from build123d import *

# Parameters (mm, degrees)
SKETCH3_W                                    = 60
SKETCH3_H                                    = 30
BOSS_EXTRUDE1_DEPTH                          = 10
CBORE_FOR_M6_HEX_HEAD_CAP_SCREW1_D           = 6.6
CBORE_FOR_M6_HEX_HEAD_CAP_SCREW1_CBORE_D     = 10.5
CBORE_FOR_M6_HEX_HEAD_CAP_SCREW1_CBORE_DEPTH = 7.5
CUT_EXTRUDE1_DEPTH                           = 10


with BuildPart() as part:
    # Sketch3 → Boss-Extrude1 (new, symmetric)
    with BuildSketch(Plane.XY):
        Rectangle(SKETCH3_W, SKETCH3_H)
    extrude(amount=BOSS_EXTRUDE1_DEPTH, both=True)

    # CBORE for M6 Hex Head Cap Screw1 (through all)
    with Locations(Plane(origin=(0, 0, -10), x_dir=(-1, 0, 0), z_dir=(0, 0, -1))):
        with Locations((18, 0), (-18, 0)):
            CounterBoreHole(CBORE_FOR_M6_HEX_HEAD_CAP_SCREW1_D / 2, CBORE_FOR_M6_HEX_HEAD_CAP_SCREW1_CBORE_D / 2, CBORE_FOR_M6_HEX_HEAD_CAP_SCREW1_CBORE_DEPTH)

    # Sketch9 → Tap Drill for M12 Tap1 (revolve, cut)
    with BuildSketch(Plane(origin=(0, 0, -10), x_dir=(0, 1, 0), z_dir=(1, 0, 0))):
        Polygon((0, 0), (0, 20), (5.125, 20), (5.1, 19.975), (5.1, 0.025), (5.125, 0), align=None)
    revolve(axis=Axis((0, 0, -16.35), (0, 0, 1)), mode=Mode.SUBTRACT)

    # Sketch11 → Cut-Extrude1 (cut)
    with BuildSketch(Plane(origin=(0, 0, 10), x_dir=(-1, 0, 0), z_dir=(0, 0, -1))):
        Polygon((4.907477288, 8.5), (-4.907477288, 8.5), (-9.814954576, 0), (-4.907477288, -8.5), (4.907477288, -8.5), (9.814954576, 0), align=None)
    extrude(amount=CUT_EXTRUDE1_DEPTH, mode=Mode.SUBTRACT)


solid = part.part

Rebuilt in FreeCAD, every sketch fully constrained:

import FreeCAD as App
import Part
import Sketcher
Q = App.Units.Quantity


def add_polygon(sketch, points):
    """Adds a closed chain of lines whose ends are joined by coincident constraints."""
    first, n = sketch.GeometryCount, len(points)
    for a, b in zip(points, points[1:] + points[:1]):
        sketch.addGeometry(Part.LineSegment(App.Vector(*a, 0), App.Vector(*b, 0)), False)
    for i in range(n):
        sketch.addConstraint(Sketcher.Constraint("Coincident", first + i, 2, first + (i + 1) % n, 1))

doc = App.newDocument("Part")
body = doc.addObject("PartDesign::Body", "Body")

sketch1 = doc.addObject("Sketcher::SketchObject", "Sketch")
body.addObject(sketch1)
sketch1.AttachmentSupport = (doc.XY_Plane, [""])
sketch1.MapMode = "FlatFace"
add_polygon(sketch1, [(-30, 15), (-30, -15), (30, -15), (30, 15)])
sketch1.addConstraint([
    Sketcher.Constraint("Vertical", 0),
    Sketcher.Constraint("Horizontal", 1),
    Sketcher.Constraint("Vertical", 2),
    Sketcher.Constraint("Horizontal", 3),
    Sketcher.Constraint("Symmetric", 0, 2, 2, 2, -1, 1),
    Sketcher.Constraint("DistanceX", 1, 1, 1, 2, Q("60 mm")),
    Sketcher.Constraint("DistanceY", 0, 2, 0, 1, Q("30 mm")),
])
pad1 = doc.addObject("PartDesign::Pad", "Pad")
body.addObject(pad1)
pad1.Profile = sketch1
pad1.Length = 20
pad1.Midplane = True

sketch2 = doc.addObject("Sketcher::SketchObject", "Sketch001")
body.addObject(sketch2)
sketch2.AttachmentSupport = (doc.XY_Plane, [""])
sketch2.MapMode = "FlatFace"
sketch2.AttachmentOffset = App.Placement(App.Vector(0, 0, -10), App.Rotation())
sketch2.addGeometry([
    Part.Circle(App.Vector(-18, 0, 0), App.Vector(0, 0, 1), 3.3),
    Part.Circle(App.Vector(18, 0, 0), App.Vector(0, 0, 1), 3.3),
], False)
sketch2.addConstraint([
    Sketcher.Constraint("Equal", 0, 1),
    Sketcher.Constraint("Symmetric", 0, 3, 1, 3, -1, 1),
    Sketcher.Constraint("PointOnObject", 0, 3, -1),
    Sketcher.Constraint("Diameter", 0, Q("6.6 mm")),
    Sketcher.Constraint("DistanceX", 0, 3, -1, 1, Q("18 mm")),
])
doc.recompute()
hole = doc.addObject("PartDesign::Hole", "Hole")
body.addObject(hole)
hole.Profile = sketch2
hole.ThreadType = "None"
hole.Diameter = 6.6
hole.DepthType = "ThroughAll"
hole.HoleCutType = "Counterbore"
hole.HoleCutDiameter = 10.5
hole.HoleCutDepth = 7.5
hole.Reversed = True

sketch3 = doc.addObject("Sketcher::SketchObject", "Sketch002")
body.addObject(sketch3)
sketch3.AttachmentSupport = (doc.YZ_Plane, [""])
sketch3.MapMode = "FlatFace"
add_polygon(sketch3, [(0, 10), (0, -10), (5.125, -10), (5.1, -9.975), (5.1, 9.975), (5.125, 10)])
sketch3.addConstraint([
    Sketcher.Constraint("Vertical", 0),
    Sketcher.Constraint("Horizontal", 1),
    Sketcher.Constraint("Vertical", 3),
    Sketcher.Constraint("Horizontal", 5),
    Sketcher.Constraint("Symmetric", 0, 2, 5, 2, -1, 1),
    Sketcher.Constraint("Perpendicular", 2, 4),
    Sketcher.Constraint("Vertical", 1, 2, 4, 2),
    Sketcher.Constraint("Equal", 2, 4),
    Sketcher.Constraint("DistanceY", 0, 2, 0, 1, Q("20 mm")),
    Sketcher.Constraint("DistanceY", 3, 1, 3, 2, Q("19.95 mm")),
    Sketcher.Constraint("DistanceX", -1, 1, 2, 2, Q("5.1 mm")),
])
groove = doc.addObject("PartDesign::Groove", "Groove")
body.addObject(groove)
groove.Profile = sketch3
groove.ReferenceAxis = (sketch3, ["V_Axis"])
groove.Angle = 360

sketch4 = doc.addObject("Sketcher::SketchObject", "Sketch003")
body.addObject(sketch4)
sketch4.AttachmentSupport = (doc.XY_Plane, [""])
sketch4.MapMode = "FlatFace"
sketch4.AttachmentOffset = App.Placement(App.Vector(0, 0, 10), App.Rotation())
add_polygon(sketch4, [(-5, 8), (5, 8), (10, 0), (5, -8), (-5, -8), (-10, 0)])
sketch4.addConstraint([
    Sketcher.Constraint("Horizontal", 0),
    Sketcher.Constraint("Horizontal", 3),
    Sketcher.Constraint("Symmetric", 0, 2, 3, 2, -1, 1),
    Sketcher.Constraint("Symmetric", 1, 2, 4, 2, -1, 1),
    Sketcher.Constraint("PointOnObject", 1, 2, -1),
    Sketcher.Constraint("Parallel", 2, 5),
    Sketcher.Constraint("Vertical", 0, 2, 2, 2),
    Sketcher.Constraint("Angle", 1, Q("-60 deg")),
    Sketcher.Constraint("DistanceY", 2, 2, 0, 2, Q("17 mm")),
    Sketcher.Constraint("DistanceX", 0, 1, 0, 2, Q("9.814955 mm")),
])
pocket1 = doc.addObject("PartDesign::Pocket", "Pocket")
body.addObject(pocket1)
pocket1.Profile = sketch4
pocket1.Length = 10

doc.recompute()
